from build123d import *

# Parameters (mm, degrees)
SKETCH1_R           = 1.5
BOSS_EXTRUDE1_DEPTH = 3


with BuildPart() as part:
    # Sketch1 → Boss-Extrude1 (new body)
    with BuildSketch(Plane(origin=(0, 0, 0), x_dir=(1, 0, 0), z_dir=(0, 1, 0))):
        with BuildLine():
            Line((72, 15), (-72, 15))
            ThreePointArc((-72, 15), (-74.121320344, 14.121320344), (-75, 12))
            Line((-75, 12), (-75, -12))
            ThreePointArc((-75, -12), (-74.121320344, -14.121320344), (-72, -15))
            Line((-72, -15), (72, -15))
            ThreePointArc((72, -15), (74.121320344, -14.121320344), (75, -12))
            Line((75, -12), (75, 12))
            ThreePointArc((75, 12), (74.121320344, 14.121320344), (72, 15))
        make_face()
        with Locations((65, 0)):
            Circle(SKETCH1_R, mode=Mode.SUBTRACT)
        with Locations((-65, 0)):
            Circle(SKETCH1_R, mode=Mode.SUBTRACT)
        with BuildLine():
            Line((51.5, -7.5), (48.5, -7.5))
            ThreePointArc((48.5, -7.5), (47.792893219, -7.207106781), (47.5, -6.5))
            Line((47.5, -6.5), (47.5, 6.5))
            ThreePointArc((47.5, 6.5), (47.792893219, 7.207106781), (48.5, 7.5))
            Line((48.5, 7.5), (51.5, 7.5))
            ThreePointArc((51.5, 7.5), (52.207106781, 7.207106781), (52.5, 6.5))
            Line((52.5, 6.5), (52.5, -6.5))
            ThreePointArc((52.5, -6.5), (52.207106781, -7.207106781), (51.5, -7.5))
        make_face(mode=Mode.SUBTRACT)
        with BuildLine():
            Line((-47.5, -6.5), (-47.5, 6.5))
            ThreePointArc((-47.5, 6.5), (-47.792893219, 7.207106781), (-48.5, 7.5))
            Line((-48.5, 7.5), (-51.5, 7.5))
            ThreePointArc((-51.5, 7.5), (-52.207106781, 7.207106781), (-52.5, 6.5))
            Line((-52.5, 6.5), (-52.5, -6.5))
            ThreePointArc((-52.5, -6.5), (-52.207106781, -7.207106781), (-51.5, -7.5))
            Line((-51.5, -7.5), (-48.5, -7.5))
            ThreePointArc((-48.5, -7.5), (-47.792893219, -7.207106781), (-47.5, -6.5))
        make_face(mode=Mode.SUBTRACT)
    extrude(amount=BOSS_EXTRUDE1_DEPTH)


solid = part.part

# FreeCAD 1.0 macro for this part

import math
import FreeCAD as App
import Part
import Sketcher
from FreeCAD import Vector

doc = App.newDocument("Part")
body = doc.addObject("PartDesign::Body", "Body")

sketch1 = body.newObject("Sketcher::SketchObject", "Sketch")
sketch1.AttachmentSupport = (doc.getObject("XZ_Plane"), [""])
sketch1.MapMode = "FlatFace"
sketch1.addGeometry(Part.LineSegment(Vector(72, -15, 0), Vector(-72, -15, 0)), False)
sketch1.addGeometry(Part.ArcOfCircle(Part.Circle(Vector(-72, -12, 0), Vector(0, 0, 1), 3), math.radians(180), math.radians(270)), False)
sketch1.addGeometry(Part.LineSegment(Vector(-75, -12, 0), Vector(-75, 12, 0)), False)
sketch1.addGeometry(Part.ArcOfCircle(Part.Circle(Vector(-72, 12, 0), Vector(0, 0, 1), 3), math.radians(90), math.radians(180)), False)
sketch1.addGeometry(Part.LineSegment(Vector(-72, 15, 0), Vector(72, 15, 0)), False)
sketch1.addGeometry(Part.ArcOfCircle(Part.Circle(Vector(72, 12, 0), Vector(0, 0, 1), 3), math.radians(0), math.radians(90)), False)
sketch1.addGeometry(Part.LineSegment(Vector(75, 12, 0), Vector(75, -12, 0)), False)
sketch1.addGeometry(Part.ArcOfCircle(Part.Circle(Vector(72, -12, 0), Vector(0, 0, 1), 3), math.radians(-90), math.radians(0)), False)
sketch1.addGeometry(Part.Circle(Vector(-65, 0, 0), Vector(0, 0, 1), 1.5), False)
sketch1.addGeometry(Part.LineSegment(Vector(-47.5, -6.5, 0), Vector(-47.5, 6.5, 0)), False)
sketch1.addGeometry(Part.ArcOfCircle(Part.Circle(Vector(-48.5, 6.5, 0), Vector(0, 0, 1), 1), math.radians(0), math.radians(90)), False)
sketch1.addGeometry(Part.LineSegment(Vector(-48.5, 7.5, 0), Vector(-51.5, 7.5, 0)), False)
sketch1.addGeometry(Part.ArcOfCircle(Part.Circle(Vector(-51.5, 6.5, 0), Vector(0, 0, 1), 1), math.radians(90), math.radians(180)), False)
sketch1.addGeometry(Part.LineSegment(Vector(-52.5, 6.5, 0), Vector(-52.5, -6.5, 0)), False)
sketch1.addGeometry(Part.ArcOfCircle(Part.Circle(Vector(-51.5, -6.5, 0), Vector(0, 0, 1), 1), math.radians(-180), math.radians(-90)), False)
sketch1.addGeometry(Part.LineSegment(Vector(-51.5, -7.5, 0), Vector(-48.5, -7.5, 0)), False)
sketch1.addGeometry(Part.ArcOfCircle(Part.Circle(Vector(-48.5, -6.5, 0), Vector(0, 0, 1), 1), math.radians(-90), math.radians(0)), False)
sketch1.addGeometry(Part.ArcOfCircle(Part.Circle(Vector(51.5, 6.5, 0), Vector(0, 0, 1), 1), math.radians(0), math.radians(90)), False)
sketch1.addGeometry(Part.LineSegment(Vector(51.5, 7.5, 0), Vector(48.5, 7.5, 0)), False)
sketch1.addGeometry(Part.ArcOfCircle(Part.Circle(Vector(48.5, 6.5, 0), Vector(0, 0, 1), 1), math.radians(90), math.radians(180)), False)
sketch1.addGeometry(Part.LineSegment(Vector(47.5, 6.5, 0), Vector(47.5, -6.5, 0)), False)
sketch1.addGeometry(Part.ArcOfCircle(Part.Circle(Vector(48.5, -6.5, 0), Vector(0, 0, 1), 1), math.radians(-180), math.radians(-90)), False)
sketch1.addGeometry(Part.LineSegment(Vector(48.5, -7.5, 0), Vector(51.5, -7.5, 0)), False)
sketch1.addGeometry(Part.ArcOfCircle(Part.Circle(Vector(51.5, -6.5, 0), Vector(0, 0, 1), 1), math.radians(-90), math.radians(0)), False)
sketch1.addGeometry(Part.LineSegment(Vector(52.5, -6.5, 0), Vector(52.5, 6.5, 0)), False)
sketch1.addGeometry(Part.Circle(Vector(65, 0, 0), Vector(0, 0, 1), 1.5), False)
sketch1.addConstraint(Sketcher.Constraint("Tangent", 0, 2, 1, 2))
sketch1.addConstraint(Sketcher.Constraint("Tangent", 1, 1, 2, 1))
sketch1.addConstraint(Sketcher.Constraint("Tangent", 2, 2, 3, 2))
sketch1.addConstraint(Sketcher.Constraint("Tangent", 3, 1, 4, 1))
sketch1.addConstraint(Sketcher.Constraint("Tangent", 4, 2, 5, 2))
sketch1.addConstraint(Sketcher.Constraint("Tangent", 5, 1, 6, 1))
sketch1.addConstraint(Sketcher.Constraint("Tangent", 6, 2, 7, 2))
sketch1.addConstraint(Sketcher.Constraint("Tangent", 7, 1, 0, 1))
sketch1.addConstraint(Sketcher.Constraint("Tangent", 9, 2, 10, 1))
sketch1.addConstraint(Sketcher.Constraint("Tangent", 10, 2, 11, 1))
sketch1.addConstraint(Sketcher.Constraint("Tangent", 11, 2, 12, 1))
sketch1.addConstraint(Sketcher.Constraint("Tangent", 12, 2, 13, 1))
sketch1.addConstraint(Sketcher.Constraint("Tangent", 13, 2, 14, 1))
sketch1.addConstraint(Sketcher.Constraint("Tangent", 14, 2, 15, 1))
sketch1.addConstraint(Sketcher.Constraint("Tangent", 15, 2, 16, 1))
sketch1.addConstraint(Sketcher.Constraint("Tangent", 16, 2, 9, 1))
sketch1.addConstraint(Sketcher.Constraint("Tangent", 17, 2, 18, 1))
sketch1.addConstraint(Sketcher.Constraint("Tangent", 18, 2, 19, 1))
sketch1.addConstraint(Sketcher.Constraint("Tangent", 19, 2, 20, 1))
sketch1.addConstraint(Sketcher.Constraint("Tangent", 20, 2, 21, 1))
sketch1.addConstraint(Sketcher.Constraint("Tangent", 21, 2, 22, 1))
sketch1.addConstraint(Sketcher.Constraint("Tangent", 22, 2, 23, 1))
sketch1.addConstraint(Sketcher.Constraint("Tangent", 23, 2, 24, 1))
sketch1.addConstraint(Sketcher.Constraint("Tangent", 24, 2, 17, 1))
sketch1.addConstraint(Sketcher.Constraint("Horizontal", 0))
sketch1.addConstraint(Sketcher.Constraint("Vertical", 2))
sketch1.addConstraint(Sketcher.Constraint("Horizontal", 4))
sketch1.addConstraint(Sketcher.Constraint("Vertical", 6))
sketch1.addConstraint(Sketcher.Constraint("Vertical", 9))
sketch1.addConstraint(Sketcher.Constraint("Horizontal", 11))
sketch1.addConstraint(Sketcher.Constraint("Vertical", 13))
sketch1.addConstraint(Sketcher.Constraint("Horizontal", 15))
sketch1.addConstraint(Sketcher.Constraint("Horizontal", 18))
sketch1.addConstraint(Sketcher.Constraint("Vertical", 20))
sketch1.addConstraint(Sketcher.Constraint("Horizontal", 22))
sketch1.addConstraint(Sketcher.Constraint("Vertical", 24))
sketch1.addConstraint(Sketcher.Constraint("Equal", 1, 3))
sketch1.addConstraint(Sketcher.Constraint("Equal", 3, 5))
sketch1.addConstraint(Sketcher.Constraint("Equal", 5, 7))
sketch1.addConstraint(Sketcher.Constraint("Equal", 10, 12))
sketch1.addConstraint(Sketcher.Constraint("Equal", 12, 14))
sketch1.addConstraint(Sketcher.Constraint("Equal", 14, 16))
sketch1.addConstraint(Sketcher.Constraint("Equal", 16, 17))
sketch1.addConstraint(Sketcher.Constraint("Equal", 17, 19))
sketch1.addConstraint(Sketcher.Constraint("Equal", 19, 21))
sketch1.addConstraint(Sketcher.Constraint("Equal", 21, 23))
sketch1.addConstraint(Sketcher.Constraint("Equal", 8, 25))
sketch1.addConstraint(Sketcher.Constraint("Symmetric", 1, 3, 5, 3, -1, 1))
sketch1.addConstraint(Sketcher.Constraint("Symmetric", 14, 3, 17, 3, -1, 1))
sketch1.addConstraint(Sketcher.Constraint("Symmetric", 10, 3, 21, 3, -1, 1))
sketch1.addConstraint(Sketcher.Constraint("Symmetric", 8, 3, 25, 3, -1, 1))
sketch1.addConstraint(Sketcher.Constraint("PointOnObject", 8, 3, -1))
sketch1.addConstraint(Sketcher.Constraint("Horizontal", 12, 3, 17, 3))
sketch1.addConstraint(Sketcher.Constraint("Diameter", 8, 3.0))
sketch1.addConstraint(Sketcher.Constraint("Radius", 1, 3.0))
sketch1.addConstraint(Sketcher.Constraint("Radius", 10, 1.0))
sketch1.addConstraint(Sketcher.Constraint("DistanceX", 0, 2, 0, 1, 144.0))
sketch1.addConstraint(Sketcher.Constraint("DistanceX", 11, 2, 11, 1, 3.0))
sketch1.addConstraint(Sketcher.Constraint("DistanceY", 2, 1, 2, 2, 24.0))
sketch1.addConstraint(Sketcher.Constraint("DistanceY", 9, 1, 9, 2, 13.0))
sketch1.addConstraint(Sketcher.Constraint("DistanceX", 8, 3, -1, 1, 65.0))
sketch1.addConstraint(Sketcher.Constraint("DistanceX", 10, 3, 17, 3, 100.0))
pad1 = body.newObject("PartDesign::Pad", "Pad")
pad1.Profile = sketch1
pad1.Length = 3
pad1.Reversed = True

doc.recompute()
